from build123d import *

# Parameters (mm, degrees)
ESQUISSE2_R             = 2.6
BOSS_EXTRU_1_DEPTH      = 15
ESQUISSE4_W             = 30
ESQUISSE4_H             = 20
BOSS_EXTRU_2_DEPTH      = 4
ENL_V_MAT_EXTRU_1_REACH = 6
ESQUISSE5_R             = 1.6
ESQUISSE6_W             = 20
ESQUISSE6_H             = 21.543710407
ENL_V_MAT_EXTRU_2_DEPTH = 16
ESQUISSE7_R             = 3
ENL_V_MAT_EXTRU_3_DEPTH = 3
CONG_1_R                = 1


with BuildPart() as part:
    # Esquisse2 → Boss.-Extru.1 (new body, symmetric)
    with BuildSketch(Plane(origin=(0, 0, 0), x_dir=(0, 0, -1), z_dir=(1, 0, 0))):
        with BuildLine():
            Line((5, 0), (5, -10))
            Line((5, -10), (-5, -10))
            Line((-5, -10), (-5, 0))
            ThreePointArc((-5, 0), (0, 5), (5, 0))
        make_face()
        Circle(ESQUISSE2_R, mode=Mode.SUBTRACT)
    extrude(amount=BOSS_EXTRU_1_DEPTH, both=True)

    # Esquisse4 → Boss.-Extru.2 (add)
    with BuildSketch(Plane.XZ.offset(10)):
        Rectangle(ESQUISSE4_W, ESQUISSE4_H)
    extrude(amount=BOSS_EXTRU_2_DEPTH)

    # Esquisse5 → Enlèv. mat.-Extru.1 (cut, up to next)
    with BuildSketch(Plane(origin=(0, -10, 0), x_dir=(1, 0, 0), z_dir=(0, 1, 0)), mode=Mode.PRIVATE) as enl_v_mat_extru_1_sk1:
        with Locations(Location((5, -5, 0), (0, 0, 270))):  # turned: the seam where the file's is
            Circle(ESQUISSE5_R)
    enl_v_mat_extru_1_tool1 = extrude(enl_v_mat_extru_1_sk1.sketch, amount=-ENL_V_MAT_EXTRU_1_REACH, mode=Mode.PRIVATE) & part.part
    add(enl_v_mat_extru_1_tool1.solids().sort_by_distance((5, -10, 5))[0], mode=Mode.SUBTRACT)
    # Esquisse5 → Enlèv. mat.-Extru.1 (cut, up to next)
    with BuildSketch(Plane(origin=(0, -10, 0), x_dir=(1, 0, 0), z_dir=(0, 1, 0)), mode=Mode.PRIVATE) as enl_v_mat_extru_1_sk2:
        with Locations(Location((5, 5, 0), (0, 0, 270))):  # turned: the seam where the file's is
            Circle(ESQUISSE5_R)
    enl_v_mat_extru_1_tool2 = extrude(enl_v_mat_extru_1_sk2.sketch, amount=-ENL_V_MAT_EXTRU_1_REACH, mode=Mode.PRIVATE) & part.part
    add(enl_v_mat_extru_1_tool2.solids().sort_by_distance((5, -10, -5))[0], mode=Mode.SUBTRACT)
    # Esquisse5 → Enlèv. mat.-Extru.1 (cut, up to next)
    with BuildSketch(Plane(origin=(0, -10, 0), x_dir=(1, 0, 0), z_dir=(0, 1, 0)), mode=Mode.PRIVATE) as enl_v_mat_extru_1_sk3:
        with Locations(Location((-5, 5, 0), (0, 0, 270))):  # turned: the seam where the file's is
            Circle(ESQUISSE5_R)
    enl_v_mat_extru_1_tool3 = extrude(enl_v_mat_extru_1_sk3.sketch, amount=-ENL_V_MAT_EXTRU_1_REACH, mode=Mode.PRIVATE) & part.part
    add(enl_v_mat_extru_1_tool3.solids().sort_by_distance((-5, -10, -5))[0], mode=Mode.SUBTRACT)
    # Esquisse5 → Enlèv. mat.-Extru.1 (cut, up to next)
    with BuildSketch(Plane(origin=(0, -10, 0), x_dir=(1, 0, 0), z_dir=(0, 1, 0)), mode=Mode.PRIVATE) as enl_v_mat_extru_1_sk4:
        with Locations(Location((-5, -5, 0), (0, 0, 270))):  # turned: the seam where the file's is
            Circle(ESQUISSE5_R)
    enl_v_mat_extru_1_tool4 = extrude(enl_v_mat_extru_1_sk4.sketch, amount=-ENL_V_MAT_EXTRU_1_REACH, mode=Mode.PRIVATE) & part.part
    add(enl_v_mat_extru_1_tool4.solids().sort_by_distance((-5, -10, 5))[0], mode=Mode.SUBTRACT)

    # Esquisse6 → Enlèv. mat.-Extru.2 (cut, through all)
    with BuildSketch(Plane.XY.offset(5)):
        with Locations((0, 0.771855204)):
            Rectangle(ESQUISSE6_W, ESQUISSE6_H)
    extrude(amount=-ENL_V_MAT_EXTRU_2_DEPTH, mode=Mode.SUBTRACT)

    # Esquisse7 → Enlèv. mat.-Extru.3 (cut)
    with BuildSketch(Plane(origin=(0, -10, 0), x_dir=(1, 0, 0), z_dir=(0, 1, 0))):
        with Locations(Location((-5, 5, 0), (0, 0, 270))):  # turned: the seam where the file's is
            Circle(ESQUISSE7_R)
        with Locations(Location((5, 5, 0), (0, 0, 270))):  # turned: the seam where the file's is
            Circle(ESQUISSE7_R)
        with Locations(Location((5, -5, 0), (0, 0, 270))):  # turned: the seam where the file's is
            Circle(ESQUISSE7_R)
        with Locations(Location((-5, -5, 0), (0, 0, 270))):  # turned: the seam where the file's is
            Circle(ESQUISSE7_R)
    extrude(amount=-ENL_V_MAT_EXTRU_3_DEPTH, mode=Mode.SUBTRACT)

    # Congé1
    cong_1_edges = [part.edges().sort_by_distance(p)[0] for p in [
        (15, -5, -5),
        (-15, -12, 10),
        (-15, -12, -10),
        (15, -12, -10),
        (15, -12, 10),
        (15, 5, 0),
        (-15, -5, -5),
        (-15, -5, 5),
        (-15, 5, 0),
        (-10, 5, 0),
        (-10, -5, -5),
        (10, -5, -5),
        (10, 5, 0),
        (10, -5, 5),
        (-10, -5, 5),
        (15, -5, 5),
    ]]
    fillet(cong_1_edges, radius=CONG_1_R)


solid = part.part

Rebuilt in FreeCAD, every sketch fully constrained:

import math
import FreeCAD as App
import Part
import Sketcher
from FreeCAD import Vector


def edges_at(feature, points):
    """Names of the edges that pass closest to the given points."""
    edges = feature.Shape.Edges
    near = lambda p: min(range(len(edges)), key=lambda i: edges[i].distToShape(Part.Vertex(*p))[0])
    return sorted({f"Edge{near(p) + 1}" for p in points})

doc = App.newDocument("Part")
body = doc.addObject("PartDesign::Body", "Body")

# Sketch on YZ plane
sketch1 = body.newObject("Sketcher::SketchObject", "Sketch")
sketch1.AttachmentSupport = (doc.getObject("YZ_Plane"), [""])
sketch1.MapMode = "FlatFace"
sketch1.addGeometry([
    Part.LineSegment(Vector(-10, -5, 0), Vector(0, -5, 0)),  # 0
    Part.ArcOfCircle(Part.Circle(Vector(0, 0, 0), Vector(0, 0, 1), 5), math.radians(-90), math.radians(90)),  # 1
    Part.LineSegment(Vector(0, 5, 0), Vector(-10, 5, 0)),  # 2
    Part.LineSegment(Vector(-10, 5, 0), Vector(-10, -5, 0)),  # 3
    Part.Circle(Vector(0, 0, 0), Vector(0, 0, 1), 2.6),  # 4
], False)
sketch1.addConstraint([
    Sketcher.Constraint("Tangent", 0, 2, 1, 1),
    Sketcher.Constraint("Tangent", 1, 2, 2, 1),
    Sketcher.Constraint("Coincident", 2, 2, 3, 1),
    Sketcher.Constraint("Coincident", 3, 2, 0, 1),
    Sketcher.Constraint("Horizontal", 0),
    Sketcher.Constraint("Horizontal", 2),
    Sketcher.Constraint("Vertical", 3),
    Sketcher.Constraint("Coincident", 1, 3, -1, 1),
    Sketcher.Constraint("Coincident", 4, 3, -1, 1),
    Sketcher.Constraint("Equal", 2, 3),
    Sketcher.Constraint("Radius", 1, 5.0),
    Sketcher.Constraint("Diameter", 4, 5.2),
])
pad1 = body.newObject("PartDesign::Pad", "Pad")
pad1.Profile = sketch1
pad1.Length = 30
pad1.Midplane = True

# Sketch on XZ plane
sketch2 = body.newObject("Sketcher::SketchObject", "Sketch001")
sketch2.AttachmentSupport = (doc.getObject("XZ_Plane"), [""])
sketch2.MapMode = "FlatFace"
sketch2.AttachmentOffset = App.Placement(Vector(0, 0, 10), App.Rotation())
sketch2.addGeometry([
    Part.LineSegment(Vector(-15, 10, 0), Vector(-15, -10, 0)),
    Part.LineSegment(Vector(-15, -10, 0), Vector(15, -10, 0)),
    Part.LineSegment(Vector(15, -10, 0), Vector(15, 10, 0)),
    Part.LineSegment(Vector(15, 10, 0), Vector(-15, 10, 0)),
], False)
sketch2.addConstraint([
    Sketcher.Constraint("Coincident", 0, 2, 1, 1),
    Sketcher.Constraint("Coincident", 1, 2, 2, 1),
    Sketcher.Constraint("Coincident", 2, 2, 3, 1),
    Sketcher.Constraint("Coincident", 3, 2, 0, 1),
    Sketcher.Constraint("Vertical", 0),
    Sketcher.Constraint("Horizontal", 1),
    Sketcher.Constraint("Vertical", 2),
    Sketcher.Constraint("Horizontal", 3),
    Sketcher.Constraint("Symmetric", 0, 2, 2, 2, -1, 1),
    Sketcher.Constraint("DistanceX", 1, 1, 1, 2, 30.0),
    Sketcher.Constraint("DistanceY", 0, 2, 0, 1, 20.0),
])
pad2 = body.newObject("PartDesign::Pad", "Pad001")
pad2.Profile = sketch2
pad2.Length = 4

# Sketch on XZ plane
sketch3 = body.newObject("Sketcher::SketchObject", "Sketch002")
sketch3.AttachmentSupport = (doc.getObject("XZ_Plane"), [""])
sketch3.MapMode = "FlatFace"
sketch3.AttachmentOffset = App.Placement(Vector(0, 0, 10), App.Rotation())
sketch3.addGeometry(Part.Circle(Vector(5, 5, 0), Vector(0, 0, 1), 1.6), False)
sketch3.addConstraint([
    Sketcher.Constraint("Diameter", 0, 3.2),
    Sketcher.Constraint("DistanceX", -1, 1, 0, 3, 5.0),
    Sketcher.Constraint("DistanceY", -1, 1, 0, 3, 5.0),
])
pocket1 = body.newObject("PartDesign::Pocket", "Pocket")
pocket1.Profile = sketch3
pocket1.Type = "UpToFirst"
pocket1.Reversed = True

# Sketch on XZ plane
sketch4 = body.newObject("Sketcher::SketchObject", "Sketch003")
sketch4.AttachmentSupport = (doc.getObject("XZ_Plane"), [""])
sketch4.MapMode = "FlatFace"
sketch4.AttachmentOffset = App.Placement(Vector(0, 0, 10), App.Rotation())
sketch4.addGeometry(Part.Circle(Vector(5, -5, 0), Vector(0, 0, 1), 1.6), False)
sketch4.addConstraint([
    Sketcher.Constraint("Diameter", 0, 3.2),
    Sketcher.Constraint("DistanceX", -1, 1, 0, 3, 5.0),
    Sketcher.Constraint("DistanceY", 0, 3, -1, 1, 5.0),
])
pocket2 = body.newObject("PartDesign::Pocket", "Pocket001")
pocket2.Profile = sketch4
pocket2.Type = "UpToFirst"
pocket2.Reversed = True

# Sketch on XZ plane
sketch5 = body.newObject("Sketcher::SketchObject", "Sketch004")
sketch5.AttachmentSupport = (doc.getObject("XZ_Plane"), [""])
sketch5.MapMode = "FlatFace"
sketch5.AttachmentOffset = App.Placement(Vector(0, 0, 10), App.Rotation())
sketch5.addGeometry(Part.Circle(Vector(-5, -5, 0), Vector(0, 0, 1), 1.6), False)
sketch5.addConstraint([
    Sketcher.Constraint("Diameter", 0, 3.2),
    Sketcher.Constraint("DistanceX", 0, 3, -1, 1, 5.0),
    Sketcher.Constraint("DistanceY", 0, 3, -1, 1, 5.0),
])
pocket3 = body.newObject("PartDesign::Pocket", "Pocket002")
pocket3.Profile = sketch5
pocket3.Type = "UpToFirst"
pocket3.Reversed = True

# Sketch on XZ plane
sketch6 = body.newObject("Sketcher::SketchObject", "Sketch005")
sketch6.AttachmentSupport = (doc.getObject("XZ_Plane"), [""])
sketch6.MapMode = "FlatFace"
sketch6.AttachmentOffset = App.Placement(Vector(0, 0, 10), App.Rotation())
sketch6.addGeometry(Part.Circle(Vector(-5, 5, 0), Vector(0, 0, 1), 1.6), False)
sketch6.addConstraint([
    Sketcher.Constraint("Diameter", 0, 3.2),
    Sketcher.Constraint("DistanceX", 0, 3, -1, 1, 5.0),
    Sketcher.Constraint("DistanceY", -1, 1, 0, 3, 5.0),
])
pocket4 = body.newObject("PartDesign::Pocket", "Pocket003")
pocket4.Profile = sketch6
pocket4.Type = "UpToFirst"
pocket4.Reversed = True

# Sketch on XY plane
sketch7 = body.newObject("Sketcher::SketchObject", "Sketch006")
sketch7.AttachmentSupport = (doc.getObject("XY_Plane"), [""])
sketch7.MapMode = "FlatFace"
sketch7.AttachmentOffset = App.Placement(Vector(0, 0, 5), App.Rotation())
sketch7.addGeometry([
    Part.LineSegment(Vector(-10, 11.54371, 0), Vector(-10, -10, 0)),
    Part.LineSegment(Vector(-10, -10, 0), Vector(10, -10, 0)),
    Part.LineSegment(Vector(10, -10, 0), Vector(10, 11.54371, 0)),
    Part.LineSegment(Vector(10, 11.54371, 0), Vector(-10, 11.54371, 0)),
], False)
sketch7.addConstraint([
    Sketcher.Constraint("Coincident", 0, 2, 1, 1),
    Sketcher.Constraint("Coincident", 1, 2, 2, 1),
    Sketcher.Constraint("Coincident", 2, 2, 3, 1),
    Sketcher.Constraint("Coincident", 3, 2, 0, 1),
    Sketcher.Constraint("Vertical", 0),
    Sketcher.Constraint("Horizontal", 1),
    Sketcher.Constraint("Vertical", 2),
    Sketcher.Constraint("Horizontal", 3),
    Sketcher.Constraint("DistanceX", 1, 1, 1, 2, 20.0),
    Sketcher.Constraint("DistanceX", 0, 2, -1, 1, 10.0),
    Sketcher.Constraint("DistanceY", 0, 2, -1, 1, 10.0),
    Sketcher.Constraint("DistanceY", 0, 2, 0, 1, 21.54371),
])
pocket5 = body.newObject("PartDesign::Pocket", "Pocket004")
pocket5.Profile = sketch7
pocket5.Type = "ThroughAll"

# Sketch on XZ plane
sketch8 = body.newObject("Sketcher::SketchObject", "Sketch007")
sketch8.AttachmentSupport = (doc.getObject("XZ_Plane"), [""])
sketch8.MapMode = "FlatFace"
sketch8.AttachmentOffset = App.Placement(Vector(0, 0, 10), App.Rotation())
sketch8.addGeometry([
    Part.Circle(Vector(-5, -5, 0), Vector(0, 0, 1), 3),
    Part.Circle(Vector(5, -5, 0), Vector(0, 0, 1), 3),
    Part.Circle(Vector(5, 5, 0), Vector(0, 0, 1), 3),
    Part.Circle(Vector(-5, 5, 0), Vector(0, 0, 1), 3),
], False)
sketch8.addConstraint([
    Sketcher.Constraint("Equal", 0, 1),
    Sketcher.Constraint("Equal", 1, 2),
    Sketcher.Constraint("Equal", 2, 3),
    Sketcher.Constraint("Symmetric", 0, 3, 2, 3, -1, 1),
    Sketcher.Constraint("Symmetric", 1, 3, 3, 3, -1, 1),
    Sketcher.Constraint("Symmetric", 0, 3, 1, 3, -2),
    Sketcher.Constraint("Diameter", 0, 6.0),
    Sketcher.Constraint("DistanceX", 0, 3, -1, 1, 5.0),
    Sketcher.Constraint("DistanceY", 0, 3, -1, 1, 5.0),
])
pocket6 = body.newObject("PartDesign::Pocket", "Pocket005")
pocket6.Profile = sketch8
pocket6.Length = 3
pocket6.Reversed = True
doc.recompute()

fillet = body.newObject("PartDesign::Fillet", "Fillet")
fillet.Base = (pocket6, edges_at(pocket6, [
    (15, -5, -5),
    (-15, -12, 10),
    (-15, -12, -10),
    (15, -12, -10),
    (15, -12, 10),
    (15, 5, 0),
    (-15, -5, -5),
    (-15, -5, 5),
    (-15, 5, 0),
    (-10, 5, 0),
    (-10, -5, -5),
    (10, -5, -5),
    (10, 5, 0),
    (10, -5, 5),
    (-10, -5, 5),
    (15, -5, 5),
]))
fillet.Radius = 1

doc.recompute()
